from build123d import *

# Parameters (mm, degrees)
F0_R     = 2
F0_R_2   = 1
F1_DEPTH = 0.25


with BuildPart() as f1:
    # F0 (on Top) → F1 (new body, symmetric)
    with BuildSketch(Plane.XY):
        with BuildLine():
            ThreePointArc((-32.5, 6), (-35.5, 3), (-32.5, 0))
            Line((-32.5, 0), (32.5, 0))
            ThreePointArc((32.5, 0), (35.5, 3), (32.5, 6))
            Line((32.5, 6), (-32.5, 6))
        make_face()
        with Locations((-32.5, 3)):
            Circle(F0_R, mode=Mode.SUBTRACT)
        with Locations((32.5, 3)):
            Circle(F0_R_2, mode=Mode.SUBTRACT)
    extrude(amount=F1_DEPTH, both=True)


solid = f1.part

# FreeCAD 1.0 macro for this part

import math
import FreeCAD as App
import Part
import Sketcher
from FreeCAD import Vector
Q = App.Units.Quantity

doc = App.newDocument("Part")
body = doc.addObject("PartDesign::Body", "Body")

# Sketch on XY plane
sketch1 = doc.addObject("Sketcher::SketchObject", "Sketch")
body.addObject(sketch1)
sketch1.AttachmentSupport = (doc.XY_Plane, [""])
sketch1.MapMode = "FlatFace"
sketch1.addGeometry([
    Part.ArcOfCircle(Part.Circle(Vector(-32.5, 3, 0), Vector(0, 0, 1), 3), math.radians(90), math.radians(270)),  # 0
    Part.LineSegment(Vector(-32.5, 0, 0), Vector(32.5, 0, 0)),  # 1
    Part.ArcOfCircle(Part.Circle(Vector(32.5, 3, 0), Vector(0, 0, 1), 3), math.radians(-90), math.radians(90)),  # 2
    Part.LineSegment(Vector(32.5, 6, 0), Vector(-32.5, 6, 0)),  # 3
    Part.Circle(Vector(-32.5, 3, 0), Vector(0, 0, 1), 2),  # 4
    Part.Circle(Vector(32.5, 3, 0), Vector(0, 0, 1), 1),  # 5
], False)
sketch1.addConstraint([
    Sketcher.Constraint("Tangent", 0, 2, 1, 1),
    Sketcher.Constraint("Tangent", 1, 2, 2, 1),
    Sketcher.Constraint("Tangent", 2, 2, 3, 1),
    Sketcher.Constraint("Tangent", 3, 2, 0, 1),
    Sketcher.Constraint("Horizontal", 1),
    Sketcher.Constraint("Horizontal", 3),
    Sketcher.Constraint("Coincident", 4, 3, 0, 3),
    Sketcher.Constraint("Coincident", 5, 3, 2, 3),
    Sketcher.Constraint("Symmetric", 0, 2, 1, 2, -1, 1),
    Sketcher.Constraint("Diameter", 4, Q("4 mm")),
    Sketcher.Constraint("Diameter", 5, Q("2 mm")),
    Sketcher.Constraint("Radius", 0, Q("3 mm")),
    Sketcher.Constraint("DistanceX", 1, 1, 1, 2, Q("65 mm")),
])
pad1 = doc.addObject("PartDesign::Pad", "Pad")
body.addObject(pad1)
pad1.Profile = sketch1
pad1.Length = 0.5
pad1.Midplane = True

doc.recompute()
